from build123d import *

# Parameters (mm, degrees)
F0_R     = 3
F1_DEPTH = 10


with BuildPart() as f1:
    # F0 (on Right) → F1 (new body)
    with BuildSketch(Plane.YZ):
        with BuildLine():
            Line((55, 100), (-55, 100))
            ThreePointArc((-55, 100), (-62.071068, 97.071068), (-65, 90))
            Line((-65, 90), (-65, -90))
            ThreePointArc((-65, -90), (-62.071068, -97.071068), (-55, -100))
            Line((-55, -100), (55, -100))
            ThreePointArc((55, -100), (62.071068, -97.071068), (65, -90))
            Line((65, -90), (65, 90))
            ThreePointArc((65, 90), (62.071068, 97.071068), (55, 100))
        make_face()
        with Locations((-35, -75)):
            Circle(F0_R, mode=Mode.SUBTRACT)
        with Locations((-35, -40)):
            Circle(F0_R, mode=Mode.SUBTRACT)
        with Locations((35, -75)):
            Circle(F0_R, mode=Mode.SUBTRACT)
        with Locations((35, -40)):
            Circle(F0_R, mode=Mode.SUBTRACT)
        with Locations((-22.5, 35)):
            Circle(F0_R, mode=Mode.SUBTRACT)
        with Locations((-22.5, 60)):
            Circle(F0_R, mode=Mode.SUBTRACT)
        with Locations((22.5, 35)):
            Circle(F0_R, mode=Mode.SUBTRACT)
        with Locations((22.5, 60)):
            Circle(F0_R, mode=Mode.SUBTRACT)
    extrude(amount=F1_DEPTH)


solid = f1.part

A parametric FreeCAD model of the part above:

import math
import FreeCAD as App
import Part
import Sketcher

doc = App.newDocument("Part")
body = doc.addObject("PartDesign::Body", "Body")

sketch1 = body.newObject("Sketcher::SketchObject", "Sketch")
sketch1.AttachmentSupport = (doc.getObject("YZ_Plane"), [""])
sketch1.MapMode = "FlatFace"
sketch1.addGeometry(Part.LineSegment(App.Vector(55, 100, 0), App.Vector(-55, 100, 0)), False)
sketch1.addGeometry(Part.ArcOfCircle(Part.Circle(App.Vector(-55, 90, 0), App.Vector(0, 0, 1), 10), math.radians(90), math.radians(180)), False)
sketch1.addGeometry(Part.LineSegment(App.Vector(-65, 90, 0), App.Vector(-65, -90, 0)), False)
sketch1.addGeometry(Part.ArcOfCircle(Part.Circle(App.Vector(-55, -90, 0), App.Vector(0, 0, 1), 10), math.radians(180), math.radians(270)), False)
sketch1.addGeometry(Part.LineSegment(App.Vector(-55, -100, 0), App.Vector(55, -100, 0)), False)
sketch1.addGeometry(Part.ArcOfCircle(Part.Circle(App.Vector(55, -90, 0), App.Vector(0, 0, 1), 10), math.radians(-90), math.radians(0)), False)
sketch1.addGeometry(Part.LineSegment(App.Vector(65, -90, 0), App.Vector(65, 90, 0)), False)
sketch1.addGeometry(Part.ArcOfCircle(Part.Circle(App.Vector(55, 90, 0), App.Vector(0, 0, 1), 10), math.radians(0), math.radians(90)), False)
sketch1.addGeometry(Part.Circle(App.Vector(-35, -75, 0), App.Vector(0, 0, 1), 3), False)
sketch1.addGeometry(Part.Circle(App.Vector(-35, -40, 0), App.Vector(0, 0, 1), 3), False)
sketch1.addGeometry(Part.Circle(App.Vector(35, -75, 0), App.Vector(0, 0, 1), 3), False)
sketch1.addGeometry(Part.Circle(App.Vector(35, -40, 0), App.Vector(0, 0, 1), 3), False)
sketch1.addGeometry(Part.Circle(App.Vector(-22.5, 35, 0), App.Vector(0, 0, 1), 3), False)
sketch1.addGeometry(Part.Circle(App.Vector(-22.5, 60, 0), App.Vector(0, 0, 1), 3), False)
sketch1.addGeometry(Part.Circle(App.Vector(22.5, 35, 0), App.Vector(0, 0, 1), 3), False)
sketch1.addGeometry(Part.Circle(App.Vector(22.5, 60, 0), App.Vector(0, 0, 1), 3), False)
sketch1.addConstraint(Sketcher.Constraint("Tangent", 0, 2, 1, 1))
sketch1.addConstraint(Sketcher.Constraint("Tangent", 1, 2, 2, 1))
sketch1.addConstraint(Sketcher.Constraint("Tangent", 2, 2, 3, 1))
sketch1.addConstraint(Sketcher.Constraint("Tangent", 3, 2, 4, 1))
sketch1.addConstraint(Sketcher.Constraint("Tangent", 4, 2, 5, 1))
sketch1.addConstraint(Sketcher.Constraint("Tangent", 5, 2, 6, 1))
sketch1.addConstraint(Sketcher.Constraint("Tangent", 6, 2, 7, 1))
sketch1.addConstraint(Sketcher.Constraint("Tangent", 7, 2, 0, 1))
sketch1.addConstraint(Sketcher.Constraint("Horizontal", 0))
sketch1.addConstraint(Sketcher.Constraint("Vertical", 2))
sketch1.addConstraint(Sketcher.Constraint("Horizontal", 4))
sketch1.addConstraint(Sketcher.Constraint("Vertical", 6))
sketch1.addConstraint(Sketcher.Constraint("Equal", 1, 3))
sketch1.addConstraint(Sketcher.Constraint("Equal", 3, 5))
sketch1.addConstraint(Sketcher.Constraint("Equal", 5, 7))
sketch1.addConstraint(Sketcher.Constraint("Equal", 8, 9))
sketch1.addConstraint(Sketcher.Constraint("Equal", 9, 10))
sketch1.addConstraint(Sketcher.Constraint("Equal", 10, 11))
sketch1.addConstraint(Sketcher.Constraint("Equal", 11, 12))
sketch1.addConstraint(Sketcher.Constraint("Equal", 12, 13))
sketch1.addConstraint(Sketcher.Constraint("Equal", 13, 14))
sketch1.addConstraint(Sketcher.Constraint("Equal", 14, 15))
sketch1.addConstraint(Sketcher.Constraint("Symmetric", 1, 3, 5, 3, -1, 1))
sketch1.addConstraint(Sketcher.Constraint("Symmetric", 8, 3, 10, 3, -2))
sketch1.addConstraint(Sketcher.Constraint("Symmetric", 9, 3, 11, 3, -2))
sketch1.addConstraint(Sketcher.Constraint("Symmetric", 12, 3, 14, 3, -2))
sketch1.addConstraint(Sketcher.Constraint("Symmetric", 13, 3, 15, 3, -2))
sketch1.addConstraint(Sketcher.Constraint("Vertical", 8, 3, 9, 3))
sketch1.addConstraint(Sketcher.Constraint("Vertical", 12, 3, 13, 3))
sketch1.addConstraint(Sketcher.Constraint("Diameter", 8, 6.0))
sketch1.addConstraint(Sketcher.Constraint("Radius", 1, 9.999999))
sketch1.addConstraint(Sketcher.Constraint("DistanceX", 0, 2, 0, 1, 110.0))
sketch1.addConstraint(Sketcher.Constraint("DistanceY", 2, 2, 2, 1, 180.0))
sketch1.addConstraint(Sketcher.Constraint("DistanceX", 8, 3, -1, 1, 35.0))
sketch1.addConstraint(Sketcher.Constraint("DistanceY", 8, 3, -1, 1, 75.0))
sketch1.addConstraint(Sketcher.Constraint("DistanceY", 9, 3, -1, 1, 40.0))
sketch1.addConstraint(Sketcher.Constraint("DistanceY", -1, 1, 12, 3, 35.0))
sketch1.addConstraint(Sketcher.Constraint("DistanceY", -1, 1, 13, 3, 60.0))
sketch1.addConstraint(Sketcher.Constraint("DistanceX", 12, 3, 14, 3, 45.0))
pad1 = body.newObject("PartDesign::Pad", "Pad")
pad1.Profile = sketch1
pad1.Length = 10

doc.recompute()
